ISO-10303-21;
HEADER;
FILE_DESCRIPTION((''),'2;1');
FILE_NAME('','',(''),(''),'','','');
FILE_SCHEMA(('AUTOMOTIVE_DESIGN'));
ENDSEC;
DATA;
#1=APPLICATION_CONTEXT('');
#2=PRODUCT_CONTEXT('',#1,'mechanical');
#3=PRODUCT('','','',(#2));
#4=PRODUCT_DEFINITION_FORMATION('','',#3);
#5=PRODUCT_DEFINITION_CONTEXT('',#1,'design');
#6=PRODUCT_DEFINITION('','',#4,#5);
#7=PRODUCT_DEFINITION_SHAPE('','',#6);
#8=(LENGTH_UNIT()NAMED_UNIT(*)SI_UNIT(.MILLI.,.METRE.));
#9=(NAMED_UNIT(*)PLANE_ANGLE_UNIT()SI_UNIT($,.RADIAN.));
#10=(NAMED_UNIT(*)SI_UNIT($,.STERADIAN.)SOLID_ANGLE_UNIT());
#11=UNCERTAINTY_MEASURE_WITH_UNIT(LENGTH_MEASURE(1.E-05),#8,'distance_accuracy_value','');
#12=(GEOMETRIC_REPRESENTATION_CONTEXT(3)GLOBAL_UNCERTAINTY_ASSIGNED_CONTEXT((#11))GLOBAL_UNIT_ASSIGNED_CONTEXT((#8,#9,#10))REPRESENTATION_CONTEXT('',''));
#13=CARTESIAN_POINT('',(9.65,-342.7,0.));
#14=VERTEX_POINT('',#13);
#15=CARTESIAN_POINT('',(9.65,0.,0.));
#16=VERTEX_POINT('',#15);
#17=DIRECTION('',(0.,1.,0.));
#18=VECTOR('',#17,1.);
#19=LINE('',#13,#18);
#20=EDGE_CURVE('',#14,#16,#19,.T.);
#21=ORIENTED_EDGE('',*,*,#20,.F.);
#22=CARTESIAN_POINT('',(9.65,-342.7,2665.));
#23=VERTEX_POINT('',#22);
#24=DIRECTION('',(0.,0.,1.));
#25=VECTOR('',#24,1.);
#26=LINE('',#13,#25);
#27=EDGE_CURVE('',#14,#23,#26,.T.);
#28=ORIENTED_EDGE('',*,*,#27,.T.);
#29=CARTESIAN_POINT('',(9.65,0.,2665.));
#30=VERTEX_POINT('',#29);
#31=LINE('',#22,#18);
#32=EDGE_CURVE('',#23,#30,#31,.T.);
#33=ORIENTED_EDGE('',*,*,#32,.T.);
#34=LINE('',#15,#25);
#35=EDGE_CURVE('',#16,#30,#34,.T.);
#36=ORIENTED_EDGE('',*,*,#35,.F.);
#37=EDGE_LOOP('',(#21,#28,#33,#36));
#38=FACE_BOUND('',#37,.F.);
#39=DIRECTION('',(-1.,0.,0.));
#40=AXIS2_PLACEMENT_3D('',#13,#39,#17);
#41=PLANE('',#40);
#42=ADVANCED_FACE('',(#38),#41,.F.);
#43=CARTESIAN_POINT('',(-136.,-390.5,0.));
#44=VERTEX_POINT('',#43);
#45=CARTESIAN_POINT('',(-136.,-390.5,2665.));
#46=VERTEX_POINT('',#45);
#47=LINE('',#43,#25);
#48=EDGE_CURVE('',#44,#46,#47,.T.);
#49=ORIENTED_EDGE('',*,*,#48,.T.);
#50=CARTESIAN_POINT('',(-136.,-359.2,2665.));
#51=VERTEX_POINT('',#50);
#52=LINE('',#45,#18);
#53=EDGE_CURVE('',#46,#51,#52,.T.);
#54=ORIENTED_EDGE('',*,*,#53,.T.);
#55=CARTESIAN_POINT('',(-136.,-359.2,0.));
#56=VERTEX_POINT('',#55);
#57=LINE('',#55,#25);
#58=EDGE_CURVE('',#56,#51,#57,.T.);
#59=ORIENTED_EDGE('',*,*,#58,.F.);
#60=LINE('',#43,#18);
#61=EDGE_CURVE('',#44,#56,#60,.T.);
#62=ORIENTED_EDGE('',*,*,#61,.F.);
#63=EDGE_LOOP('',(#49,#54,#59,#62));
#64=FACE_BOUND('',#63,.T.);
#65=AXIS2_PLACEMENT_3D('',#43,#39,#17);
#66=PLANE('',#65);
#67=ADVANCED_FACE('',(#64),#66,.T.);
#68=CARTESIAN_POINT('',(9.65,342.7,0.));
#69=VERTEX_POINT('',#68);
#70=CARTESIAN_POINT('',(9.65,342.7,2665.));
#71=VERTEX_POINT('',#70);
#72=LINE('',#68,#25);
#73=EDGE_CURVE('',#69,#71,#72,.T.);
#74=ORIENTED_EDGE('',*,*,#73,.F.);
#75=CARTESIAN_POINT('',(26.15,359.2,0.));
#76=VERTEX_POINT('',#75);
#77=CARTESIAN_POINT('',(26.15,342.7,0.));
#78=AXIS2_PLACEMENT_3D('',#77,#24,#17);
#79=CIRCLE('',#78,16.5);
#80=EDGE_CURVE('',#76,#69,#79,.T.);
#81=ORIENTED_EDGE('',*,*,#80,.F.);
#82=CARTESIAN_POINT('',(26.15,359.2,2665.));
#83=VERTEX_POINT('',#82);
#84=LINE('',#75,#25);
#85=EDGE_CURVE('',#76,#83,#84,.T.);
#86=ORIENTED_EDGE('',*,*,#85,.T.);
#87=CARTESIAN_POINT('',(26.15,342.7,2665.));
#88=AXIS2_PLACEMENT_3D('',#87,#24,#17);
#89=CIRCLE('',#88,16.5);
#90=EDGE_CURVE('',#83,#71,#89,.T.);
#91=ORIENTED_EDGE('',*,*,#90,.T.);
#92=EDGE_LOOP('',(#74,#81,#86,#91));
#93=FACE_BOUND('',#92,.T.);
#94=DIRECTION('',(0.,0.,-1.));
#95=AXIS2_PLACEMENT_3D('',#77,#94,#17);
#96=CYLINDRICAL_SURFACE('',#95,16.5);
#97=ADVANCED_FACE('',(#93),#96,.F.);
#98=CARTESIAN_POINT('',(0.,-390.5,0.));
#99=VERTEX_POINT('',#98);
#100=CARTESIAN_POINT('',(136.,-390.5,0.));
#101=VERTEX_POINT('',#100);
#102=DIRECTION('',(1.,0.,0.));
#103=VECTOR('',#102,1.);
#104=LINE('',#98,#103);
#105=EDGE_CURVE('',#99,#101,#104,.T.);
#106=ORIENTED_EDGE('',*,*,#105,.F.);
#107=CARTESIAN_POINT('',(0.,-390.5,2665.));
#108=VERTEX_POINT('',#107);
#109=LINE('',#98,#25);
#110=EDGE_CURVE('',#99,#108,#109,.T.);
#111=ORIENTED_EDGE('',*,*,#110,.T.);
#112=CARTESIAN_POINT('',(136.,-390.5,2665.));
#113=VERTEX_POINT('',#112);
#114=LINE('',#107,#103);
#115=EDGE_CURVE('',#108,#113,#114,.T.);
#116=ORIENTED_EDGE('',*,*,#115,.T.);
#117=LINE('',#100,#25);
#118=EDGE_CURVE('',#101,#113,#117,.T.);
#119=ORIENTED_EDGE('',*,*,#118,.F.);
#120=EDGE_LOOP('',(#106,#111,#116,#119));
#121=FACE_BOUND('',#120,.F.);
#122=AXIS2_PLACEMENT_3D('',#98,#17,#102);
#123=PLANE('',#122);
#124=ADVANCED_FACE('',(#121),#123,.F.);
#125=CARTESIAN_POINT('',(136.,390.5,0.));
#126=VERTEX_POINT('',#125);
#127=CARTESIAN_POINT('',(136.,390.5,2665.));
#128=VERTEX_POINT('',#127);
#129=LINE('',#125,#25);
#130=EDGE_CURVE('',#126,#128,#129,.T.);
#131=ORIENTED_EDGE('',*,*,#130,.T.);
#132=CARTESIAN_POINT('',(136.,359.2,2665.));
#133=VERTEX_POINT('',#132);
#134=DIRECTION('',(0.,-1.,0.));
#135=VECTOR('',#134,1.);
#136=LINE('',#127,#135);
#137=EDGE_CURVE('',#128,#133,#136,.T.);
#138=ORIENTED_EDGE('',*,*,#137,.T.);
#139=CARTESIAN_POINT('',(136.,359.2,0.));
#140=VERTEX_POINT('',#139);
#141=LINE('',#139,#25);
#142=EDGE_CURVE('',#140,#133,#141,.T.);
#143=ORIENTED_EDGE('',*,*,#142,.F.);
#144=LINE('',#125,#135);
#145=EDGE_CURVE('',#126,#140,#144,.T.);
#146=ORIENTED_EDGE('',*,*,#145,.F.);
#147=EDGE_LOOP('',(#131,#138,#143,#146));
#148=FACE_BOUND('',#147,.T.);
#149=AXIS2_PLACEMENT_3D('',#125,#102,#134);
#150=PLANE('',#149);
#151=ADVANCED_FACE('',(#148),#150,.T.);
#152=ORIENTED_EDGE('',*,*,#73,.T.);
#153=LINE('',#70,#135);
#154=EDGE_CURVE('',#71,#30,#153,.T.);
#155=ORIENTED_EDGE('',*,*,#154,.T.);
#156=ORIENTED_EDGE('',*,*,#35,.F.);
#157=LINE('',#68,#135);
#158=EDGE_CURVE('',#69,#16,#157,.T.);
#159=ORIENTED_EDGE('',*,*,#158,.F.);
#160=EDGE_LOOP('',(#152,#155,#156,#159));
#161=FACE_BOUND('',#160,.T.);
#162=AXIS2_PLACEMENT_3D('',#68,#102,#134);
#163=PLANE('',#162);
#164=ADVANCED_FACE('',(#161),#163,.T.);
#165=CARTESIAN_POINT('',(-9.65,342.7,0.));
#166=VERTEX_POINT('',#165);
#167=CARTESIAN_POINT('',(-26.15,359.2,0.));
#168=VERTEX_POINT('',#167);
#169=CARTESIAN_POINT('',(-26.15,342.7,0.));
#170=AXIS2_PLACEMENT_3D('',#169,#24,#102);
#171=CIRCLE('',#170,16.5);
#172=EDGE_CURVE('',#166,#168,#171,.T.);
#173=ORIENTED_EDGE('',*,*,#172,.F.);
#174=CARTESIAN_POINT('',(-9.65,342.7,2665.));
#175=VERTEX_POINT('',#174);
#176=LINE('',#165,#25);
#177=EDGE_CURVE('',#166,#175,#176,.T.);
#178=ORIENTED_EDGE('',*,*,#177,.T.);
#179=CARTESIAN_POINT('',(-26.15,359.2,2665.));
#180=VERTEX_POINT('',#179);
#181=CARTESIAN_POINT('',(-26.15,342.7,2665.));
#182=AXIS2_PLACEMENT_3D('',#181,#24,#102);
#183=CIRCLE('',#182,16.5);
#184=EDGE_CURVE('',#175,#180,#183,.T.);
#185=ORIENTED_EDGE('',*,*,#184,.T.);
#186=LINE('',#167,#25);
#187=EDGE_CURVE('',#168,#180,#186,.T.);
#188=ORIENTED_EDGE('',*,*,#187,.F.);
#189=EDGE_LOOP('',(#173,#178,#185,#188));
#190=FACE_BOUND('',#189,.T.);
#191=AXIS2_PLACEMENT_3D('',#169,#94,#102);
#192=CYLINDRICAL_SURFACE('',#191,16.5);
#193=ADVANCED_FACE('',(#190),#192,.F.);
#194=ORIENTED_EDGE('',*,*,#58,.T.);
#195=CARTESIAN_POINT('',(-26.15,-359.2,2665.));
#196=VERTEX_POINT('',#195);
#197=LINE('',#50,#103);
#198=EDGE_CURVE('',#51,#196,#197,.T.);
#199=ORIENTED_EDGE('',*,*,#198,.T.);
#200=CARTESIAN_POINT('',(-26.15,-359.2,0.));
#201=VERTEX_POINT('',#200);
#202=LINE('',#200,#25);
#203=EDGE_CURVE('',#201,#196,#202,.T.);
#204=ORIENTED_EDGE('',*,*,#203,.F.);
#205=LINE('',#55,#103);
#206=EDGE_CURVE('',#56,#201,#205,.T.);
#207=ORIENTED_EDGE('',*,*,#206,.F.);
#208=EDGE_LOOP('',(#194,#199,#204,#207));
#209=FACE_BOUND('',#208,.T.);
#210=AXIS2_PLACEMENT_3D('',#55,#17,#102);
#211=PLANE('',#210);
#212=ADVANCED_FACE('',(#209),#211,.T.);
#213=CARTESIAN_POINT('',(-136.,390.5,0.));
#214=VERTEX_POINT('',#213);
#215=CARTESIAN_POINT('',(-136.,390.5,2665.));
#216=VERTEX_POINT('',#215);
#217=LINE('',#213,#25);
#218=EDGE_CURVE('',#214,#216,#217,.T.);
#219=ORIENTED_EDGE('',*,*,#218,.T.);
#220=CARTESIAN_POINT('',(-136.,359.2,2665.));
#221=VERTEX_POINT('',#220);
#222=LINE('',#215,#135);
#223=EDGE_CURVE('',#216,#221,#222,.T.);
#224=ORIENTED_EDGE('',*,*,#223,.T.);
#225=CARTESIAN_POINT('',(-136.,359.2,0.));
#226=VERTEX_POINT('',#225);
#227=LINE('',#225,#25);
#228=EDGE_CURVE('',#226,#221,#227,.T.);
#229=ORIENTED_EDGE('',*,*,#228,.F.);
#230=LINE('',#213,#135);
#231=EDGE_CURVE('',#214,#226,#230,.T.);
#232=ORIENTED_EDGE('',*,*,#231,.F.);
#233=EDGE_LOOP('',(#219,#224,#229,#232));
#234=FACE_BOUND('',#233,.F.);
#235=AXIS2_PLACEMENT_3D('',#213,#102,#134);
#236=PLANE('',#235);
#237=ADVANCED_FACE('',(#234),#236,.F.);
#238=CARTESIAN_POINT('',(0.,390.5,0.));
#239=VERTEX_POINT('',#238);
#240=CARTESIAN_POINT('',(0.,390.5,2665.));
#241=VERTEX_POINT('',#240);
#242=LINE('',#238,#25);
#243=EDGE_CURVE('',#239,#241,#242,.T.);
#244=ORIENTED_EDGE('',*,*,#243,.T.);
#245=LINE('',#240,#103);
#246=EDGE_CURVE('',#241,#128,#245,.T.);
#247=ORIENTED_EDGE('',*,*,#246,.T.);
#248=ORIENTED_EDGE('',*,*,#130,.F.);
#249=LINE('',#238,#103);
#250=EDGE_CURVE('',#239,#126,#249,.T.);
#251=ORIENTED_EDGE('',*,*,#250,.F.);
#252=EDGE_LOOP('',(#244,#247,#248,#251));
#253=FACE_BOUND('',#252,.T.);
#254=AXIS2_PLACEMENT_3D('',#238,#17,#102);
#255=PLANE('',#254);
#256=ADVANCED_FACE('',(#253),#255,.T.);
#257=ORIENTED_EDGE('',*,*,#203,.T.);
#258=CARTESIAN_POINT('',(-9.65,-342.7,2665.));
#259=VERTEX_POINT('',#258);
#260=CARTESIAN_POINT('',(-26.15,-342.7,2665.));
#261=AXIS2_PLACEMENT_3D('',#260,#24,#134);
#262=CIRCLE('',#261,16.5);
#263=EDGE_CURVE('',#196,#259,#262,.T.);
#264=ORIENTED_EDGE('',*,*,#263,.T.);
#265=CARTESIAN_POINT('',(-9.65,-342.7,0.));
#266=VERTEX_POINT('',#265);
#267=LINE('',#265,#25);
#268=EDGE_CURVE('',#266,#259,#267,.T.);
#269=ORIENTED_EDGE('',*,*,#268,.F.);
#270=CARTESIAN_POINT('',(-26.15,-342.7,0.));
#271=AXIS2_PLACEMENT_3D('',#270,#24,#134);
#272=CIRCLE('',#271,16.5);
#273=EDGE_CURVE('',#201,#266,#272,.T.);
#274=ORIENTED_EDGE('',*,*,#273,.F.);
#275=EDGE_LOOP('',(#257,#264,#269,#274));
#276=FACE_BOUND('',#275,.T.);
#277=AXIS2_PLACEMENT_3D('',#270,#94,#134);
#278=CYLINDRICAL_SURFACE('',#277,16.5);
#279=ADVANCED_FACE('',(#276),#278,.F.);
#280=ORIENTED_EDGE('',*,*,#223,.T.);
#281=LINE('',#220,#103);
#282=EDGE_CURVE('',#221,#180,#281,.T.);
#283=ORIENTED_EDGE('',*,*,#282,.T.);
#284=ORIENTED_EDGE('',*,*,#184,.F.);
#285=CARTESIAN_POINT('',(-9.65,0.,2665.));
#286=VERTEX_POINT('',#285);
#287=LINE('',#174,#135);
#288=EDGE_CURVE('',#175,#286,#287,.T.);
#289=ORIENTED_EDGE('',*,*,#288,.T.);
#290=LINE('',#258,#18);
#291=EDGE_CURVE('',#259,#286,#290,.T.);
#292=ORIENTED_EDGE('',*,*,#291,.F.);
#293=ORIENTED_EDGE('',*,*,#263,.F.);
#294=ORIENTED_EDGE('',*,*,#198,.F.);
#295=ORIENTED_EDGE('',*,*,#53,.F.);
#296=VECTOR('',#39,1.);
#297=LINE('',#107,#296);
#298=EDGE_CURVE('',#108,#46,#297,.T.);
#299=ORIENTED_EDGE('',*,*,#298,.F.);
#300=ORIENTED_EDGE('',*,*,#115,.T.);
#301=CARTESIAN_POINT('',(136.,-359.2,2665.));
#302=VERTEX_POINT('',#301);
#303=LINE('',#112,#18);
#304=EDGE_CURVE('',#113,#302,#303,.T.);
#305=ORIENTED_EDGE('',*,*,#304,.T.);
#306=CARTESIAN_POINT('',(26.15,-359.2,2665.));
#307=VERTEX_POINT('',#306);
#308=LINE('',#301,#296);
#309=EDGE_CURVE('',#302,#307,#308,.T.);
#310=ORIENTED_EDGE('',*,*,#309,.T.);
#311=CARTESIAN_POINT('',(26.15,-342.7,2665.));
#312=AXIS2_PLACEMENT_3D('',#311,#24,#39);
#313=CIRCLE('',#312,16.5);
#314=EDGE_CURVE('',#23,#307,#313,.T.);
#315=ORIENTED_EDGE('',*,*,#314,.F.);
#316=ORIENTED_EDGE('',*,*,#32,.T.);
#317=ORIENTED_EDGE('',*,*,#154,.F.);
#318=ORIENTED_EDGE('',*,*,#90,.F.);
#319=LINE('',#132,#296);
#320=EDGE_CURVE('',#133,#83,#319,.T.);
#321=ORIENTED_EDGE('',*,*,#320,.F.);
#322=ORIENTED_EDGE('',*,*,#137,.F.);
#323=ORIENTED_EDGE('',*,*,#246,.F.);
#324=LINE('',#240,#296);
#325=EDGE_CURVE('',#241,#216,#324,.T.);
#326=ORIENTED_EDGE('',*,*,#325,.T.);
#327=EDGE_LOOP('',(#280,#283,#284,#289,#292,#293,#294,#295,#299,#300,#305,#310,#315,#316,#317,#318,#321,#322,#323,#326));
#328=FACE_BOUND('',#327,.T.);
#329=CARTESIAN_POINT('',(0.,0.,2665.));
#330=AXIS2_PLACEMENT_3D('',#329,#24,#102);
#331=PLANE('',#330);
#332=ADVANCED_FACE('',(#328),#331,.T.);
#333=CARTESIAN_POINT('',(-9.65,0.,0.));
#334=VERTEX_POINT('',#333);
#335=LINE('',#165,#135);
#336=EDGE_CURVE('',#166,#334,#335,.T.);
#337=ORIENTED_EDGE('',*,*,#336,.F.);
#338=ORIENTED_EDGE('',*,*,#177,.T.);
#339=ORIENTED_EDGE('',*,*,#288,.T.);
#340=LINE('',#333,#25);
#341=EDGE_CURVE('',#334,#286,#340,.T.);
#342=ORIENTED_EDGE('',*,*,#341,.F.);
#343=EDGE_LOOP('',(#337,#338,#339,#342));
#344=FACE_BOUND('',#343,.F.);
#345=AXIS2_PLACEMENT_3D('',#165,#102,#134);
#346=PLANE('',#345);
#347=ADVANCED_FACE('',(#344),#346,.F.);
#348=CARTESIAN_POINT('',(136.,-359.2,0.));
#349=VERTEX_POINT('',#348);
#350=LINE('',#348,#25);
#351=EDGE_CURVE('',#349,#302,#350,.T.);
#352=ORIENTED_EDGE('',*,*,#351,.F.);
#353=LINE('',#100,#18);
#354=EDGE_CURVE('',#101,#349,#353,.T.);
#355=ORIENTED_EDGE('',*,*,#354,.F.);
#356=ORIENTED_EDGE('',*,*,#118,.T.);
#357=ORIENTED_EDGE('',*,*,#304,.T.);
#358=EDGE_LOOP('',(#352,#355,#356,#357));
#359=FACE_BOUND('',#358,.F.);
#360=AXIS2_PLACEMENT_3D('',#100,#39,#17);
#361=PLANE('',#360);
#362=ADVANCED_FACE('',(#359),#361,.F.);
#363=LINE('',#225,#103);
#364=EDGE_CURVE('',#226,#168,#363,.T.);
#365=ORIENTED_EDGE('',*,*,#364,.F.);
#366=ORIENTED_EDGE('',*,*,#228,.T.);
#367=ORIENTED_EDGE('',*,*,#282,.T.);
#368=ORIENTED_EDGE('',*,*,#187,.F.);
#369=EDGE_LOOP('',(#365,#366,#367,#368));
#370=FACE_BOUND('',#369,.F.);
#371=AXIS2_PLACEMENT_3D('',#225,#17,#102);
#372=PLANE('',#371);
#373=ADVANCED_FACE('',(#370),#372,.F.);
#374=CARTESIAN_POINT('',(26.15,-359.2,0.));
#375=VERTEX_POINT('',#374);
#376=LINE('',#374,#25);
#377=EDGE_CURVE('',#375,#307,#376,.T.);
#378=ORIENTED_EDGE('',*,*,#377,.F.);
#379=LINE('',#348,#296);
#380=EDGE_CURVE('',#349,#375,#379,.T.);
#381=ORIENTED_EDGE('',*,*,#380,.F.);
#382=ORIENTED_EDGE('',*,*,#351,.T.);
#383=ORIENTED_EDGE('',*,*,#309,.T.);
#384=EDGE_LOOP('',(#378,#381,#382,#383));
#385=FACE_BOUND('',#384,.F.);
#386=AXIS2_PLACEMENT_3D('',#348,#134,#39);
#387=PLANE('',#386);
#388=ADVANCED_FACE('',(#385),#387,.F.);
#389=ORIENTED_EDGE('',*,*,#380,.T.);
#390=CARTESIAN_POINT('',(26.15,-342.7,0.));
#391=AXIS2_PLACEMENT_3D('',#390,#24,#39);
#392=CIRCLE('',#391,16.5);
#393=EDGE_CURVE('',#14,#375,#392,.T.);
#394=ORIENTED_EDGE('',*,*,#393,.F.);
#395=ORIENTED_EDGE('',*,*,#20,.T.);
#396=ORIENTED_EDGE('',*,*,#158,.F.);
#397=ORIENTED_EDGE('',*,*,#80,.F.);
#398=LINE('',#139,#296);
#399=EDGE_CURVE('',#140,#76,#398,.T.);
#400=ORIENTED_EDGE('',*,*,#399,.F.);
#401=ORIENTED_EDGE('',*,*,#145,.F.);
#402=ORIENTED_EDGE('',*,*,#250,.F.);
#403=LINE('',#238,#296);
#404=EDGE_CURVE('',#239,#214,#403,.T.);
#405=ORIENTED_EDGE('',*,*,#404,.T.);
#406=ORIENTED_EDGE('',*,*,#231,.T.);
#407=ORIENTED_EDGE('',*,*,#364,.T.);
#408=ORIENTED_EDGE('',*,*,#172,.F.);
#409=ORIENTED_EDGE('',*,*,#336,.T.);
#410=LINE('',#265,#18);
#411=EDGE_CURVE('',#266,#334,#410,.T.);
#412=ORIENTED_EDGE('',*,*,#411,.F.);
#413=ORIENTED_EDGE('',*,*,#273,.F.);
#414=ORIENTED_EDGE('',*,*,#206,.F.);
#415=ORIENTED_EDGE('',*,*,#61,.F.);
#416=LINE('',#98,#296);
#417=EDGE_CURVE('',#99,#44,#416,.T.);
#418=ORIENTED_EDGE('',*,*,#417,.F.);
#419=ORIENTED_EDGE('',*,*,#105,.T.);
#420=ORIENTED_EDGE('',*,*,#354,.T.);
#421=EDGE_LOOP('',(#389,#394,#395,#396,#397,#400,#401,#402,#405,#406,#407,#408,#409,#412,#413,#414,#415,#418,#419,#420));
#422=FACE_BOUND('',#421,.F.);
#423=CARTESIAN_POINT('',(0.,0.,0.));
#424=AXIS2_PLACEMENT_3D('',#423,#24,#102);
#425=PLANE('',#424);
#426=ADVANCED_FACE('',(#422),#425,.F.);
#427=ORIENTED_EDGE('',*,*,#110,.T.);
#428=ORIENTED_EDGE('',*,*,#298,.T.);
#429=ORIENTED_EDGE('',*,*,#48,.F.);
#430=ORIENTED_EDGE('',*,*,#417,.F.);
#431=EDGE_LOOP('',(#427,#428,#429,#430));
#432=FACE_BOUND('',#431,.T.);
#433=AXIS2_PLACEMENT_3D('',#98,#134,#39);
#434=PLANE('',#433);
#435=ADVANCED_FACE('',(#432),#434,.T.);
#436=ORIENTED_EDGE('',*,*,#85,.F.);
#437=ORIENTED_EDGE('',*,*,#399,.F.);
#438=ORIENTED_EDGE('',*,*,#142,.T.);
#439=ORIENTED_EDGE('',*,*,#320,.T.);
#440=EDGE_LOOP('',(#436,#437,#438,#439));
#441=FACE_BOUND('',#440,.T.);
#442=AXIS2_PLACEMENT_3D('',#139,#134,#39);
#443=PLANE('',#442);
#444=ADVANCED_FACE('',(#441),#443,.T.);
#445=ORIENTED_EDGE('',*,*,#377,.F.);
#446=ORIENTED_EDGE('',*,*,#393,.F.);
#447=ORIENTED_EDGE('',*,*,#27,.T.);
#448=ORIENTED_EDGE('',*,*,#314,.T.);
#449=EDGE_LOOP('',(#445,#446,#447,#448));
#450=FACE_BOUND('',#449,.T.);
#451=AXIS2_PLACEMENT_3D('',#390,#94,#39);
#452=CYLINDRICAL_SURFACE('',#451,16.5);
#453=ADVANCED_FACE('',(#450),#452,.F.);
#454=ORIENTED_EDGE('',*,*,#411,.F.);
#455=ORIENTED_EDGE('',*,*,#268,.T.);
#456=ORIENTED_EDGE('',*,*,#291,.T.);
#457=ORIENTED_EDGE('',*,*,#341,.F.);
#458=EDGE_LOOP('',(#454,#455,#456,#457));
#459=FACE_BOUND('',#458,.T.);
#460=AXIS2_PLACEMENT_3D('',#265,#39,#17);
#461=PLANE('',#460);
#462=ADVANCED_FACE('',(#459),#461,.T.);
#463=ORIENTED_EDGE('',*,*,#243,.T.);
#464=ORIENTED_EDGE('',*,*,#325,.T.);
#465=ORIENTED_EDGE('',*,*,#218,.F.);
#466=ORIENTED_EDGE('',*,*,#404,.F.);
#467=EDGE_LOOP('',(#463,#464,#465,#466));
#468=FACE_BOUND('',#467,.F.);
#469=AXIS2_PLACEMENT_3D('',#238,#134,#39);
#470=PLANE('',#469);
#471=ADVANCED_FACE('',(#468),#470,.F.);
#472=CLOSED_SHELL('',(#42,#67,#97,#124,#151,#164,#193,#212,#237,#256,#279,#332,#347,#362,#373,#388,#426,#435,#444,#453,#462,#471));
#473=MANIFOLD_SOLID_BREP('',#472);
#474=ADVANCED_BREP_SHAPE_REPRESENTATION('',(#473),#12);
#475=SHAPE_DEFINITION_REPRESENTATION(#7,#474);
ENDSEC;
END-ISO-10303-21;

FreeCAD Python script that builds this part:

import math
import FreeCAD as App
import Part
import Sketcher
from FreeCAD import Vector
Q = App.Units.Quantity

doc = App.newDocument("Part")
params = doc.addObject("Spreadsheet::Sheet", "Params")
for row, (alias, value) in enumerate([
    ("sketch1_radius", "16.5 mm"),
    ("sketch1_height", "31.3 mm"),
    ("pad1_length", "2665 mm"),
], start=1):
    params.set(f"A{row}", alias)
    params.set(f"B{row}", "=" + value)
    params.setAlias(f"B{row}", alias)

body = doc.addObject("PartDesign::Body", "Body")

sketch1 = body.newObject("Sketcher::SketchObject", "Sketch")
sketch1.AttachmentSupport = (doc.getObject("XY_Plane"), [""])
sketch1.MapMode = "FlatFace"
sketch1.addGeometry([
    Part.LineSegment(Vector(-136, -359.2, 0), Vector(-136, -390.5, 0)),
    Part.LineSegment(Vector(-136, -390.5, 0), Vector(136, -390.5, 0)),
    Part.LineSegment(Vector(136, -390.5, 0), Vector(136, -359.2, 0)),
    Part.LineSegment(Vector(136, -359.2, 0), Vector(26.15, -359.2, 0)),
    Part.ArcOfCircle(Part.Circle(Vector(26.15, -342.7, 0), Vector(0, 0, 1), 16.5), math.radians(180), math.radians(270)),
    Part.LineSegment(Vector(9.65, -342.7, 0), Vector(9.65, 342.7, 0)),
    Part.ArcOfCircle(Part.Circle(Vector(26.15, 342.7, 0), Vector(0, 0, 1), 16.5), math.radians(90), math.radians(180)),
    Part.LineSegment(Vector(26.15, 359.2, 0), Vector(136, 359.2, 0)),
    Part.LineSegment(Vector(136, 359.2, 0), Vector(136, 390.5, 0)),
    Part.LineSegment(Vector(136, 390.5, 0), Vector(-136, 390.5, 0)),
    Part.LineSegment(Vector(-136, 390.5, 0), Vector(-136, 359.2, 0)),
    Part.LineSegment(Vector(-136, 359.2, 0), Vector(-26.15, 359.2, 0)),
    Part.ArcOfCircle(Part.Circle(Vector(-26.15, 342.7, 0), Vector(0, 0, 1), 16.5), math.radians(0), math.radians(90)),
    Part.LineSegment(Vector(-9.65, 342.7, 0), Vector(-9.65, -342.7, 0)),
    Part.ArcOfCircle(Part.Circle(Vector(-26.15, -342.7, 0), Vector(0, 0, 1), 16.5), math.radians(-90), math.radians(0)),
    Part.LineSegment(Vector(-26.15, -359.2, 0), Vector(-136, -359.2, 0)),
], False)
sketch1.addConstraint([
    Sketcher.Constraint("Coincident", 0, 2, 1, 1),
    Sketcher.Constraint("Coincident", 1, 2, 2, 1),
    Sketcher.Constraint("Coincident", 2, 2, 3, 1),
    Sketcher.Constraint("Tangent", 3, 2, 4, 2),
    Sketcher.Constraint("Tangent", 4, 1, 5, 1),
    Sketcher.Constraint("Tangent", 5, 2, 6, 2),
    Sketcher.Constraint("Tangent", 6, 1, 7, 1),
    Sketcher.Constraint("Coincident", 7, 2, 8, 1),
    Sketcher.Constraint("Coincident", 8, 2, 9, 1),
    Sketcher.Constraint("Coincident", 9, 2, 10, 1),
    Sketcher.Constraint("Coincident", 10, 2, 11, 1),
    Sketcher.Constraint("Tangent", 11, 2, 12, 2),
    Sketcher.Constraint("Tangent", 12, 1, 13, 1),
    Sketcher.Constraint("Tangent", 13, 2, 14, 2),
    Sketcher.Constraint("Tangent", 14, 1, 15, 1),
    Sketcher.Constraint("Coincident", 15, 2, 0, 1),
    Sketcher.Constraint("Vertical", 0),
    Sketcher.Constraint("Horizontal", 1),
    Sketcher.Constraint("Vertical", 2),
    Sketcher.Constraint("Horizontal", 3),
    Sketcher.Constraint("Vertical", 5),
    Sketcher.Constraint("Horizontal", 7),
    Sketcher.Constraint("Vertical", 8),
    Sketcher.Constraint("Horizontal", 9),
    Sketcher.Constraint("Vertical", 10),
    Sketcher.Constraint("Horizontal", 11),
    Sketcher.Constraint("Vertical", 13),
    Sketcher.Constraint("Horizontal", 15),
    Sketcher.Constraint("Equal", 4, 6),
    Sketcher.Constraint("Equal", 6, 12),
    Sketcher.Constraint("Equal", 12, 14),
    Sketcher.Constraint("Symmetric", 4, 3, 12, 3, -1, 1),
    Sketcher.Constraint("Symmetric", 0, 2, 8, 2, -1, 1),
    Sketcher.Constraint("Symmetric", 7, 2, 10, 2, -2),
    Sketcher.Constraint("Symmetric", 2, 2, 15, 2, -2),
    Sketcher.Constraint("Radius", 4, Q("16.5 mm")),
    Sketcher.Constraint("DistanceY", 0, 2, 0, 1, Q("31.3 mm")),
    Sketcher.Constraint("DistanceX", 0, 2, -1, 1, Q("136 mm")),
    Sketcher.Constraint("DistanceY", 0, 2, -1, 1, Q("390.5 mm")),
    Sketcher.Constraint("DistanceX", -1, 1, 4, 1, Q("9.65 mm")),
])
sketch1.setExpression("Constraints[35]", "Params.sketch1_radius")
sketch1.setExpression("Constraints[36]", "Params.sketch1_height")
pad1 = body.newObject("PartDesign::Pad", "Pad")
pad1.Profile = sketch1
pad1.setExpression("Length", "Params.pad1_length")

doc.recompute()
